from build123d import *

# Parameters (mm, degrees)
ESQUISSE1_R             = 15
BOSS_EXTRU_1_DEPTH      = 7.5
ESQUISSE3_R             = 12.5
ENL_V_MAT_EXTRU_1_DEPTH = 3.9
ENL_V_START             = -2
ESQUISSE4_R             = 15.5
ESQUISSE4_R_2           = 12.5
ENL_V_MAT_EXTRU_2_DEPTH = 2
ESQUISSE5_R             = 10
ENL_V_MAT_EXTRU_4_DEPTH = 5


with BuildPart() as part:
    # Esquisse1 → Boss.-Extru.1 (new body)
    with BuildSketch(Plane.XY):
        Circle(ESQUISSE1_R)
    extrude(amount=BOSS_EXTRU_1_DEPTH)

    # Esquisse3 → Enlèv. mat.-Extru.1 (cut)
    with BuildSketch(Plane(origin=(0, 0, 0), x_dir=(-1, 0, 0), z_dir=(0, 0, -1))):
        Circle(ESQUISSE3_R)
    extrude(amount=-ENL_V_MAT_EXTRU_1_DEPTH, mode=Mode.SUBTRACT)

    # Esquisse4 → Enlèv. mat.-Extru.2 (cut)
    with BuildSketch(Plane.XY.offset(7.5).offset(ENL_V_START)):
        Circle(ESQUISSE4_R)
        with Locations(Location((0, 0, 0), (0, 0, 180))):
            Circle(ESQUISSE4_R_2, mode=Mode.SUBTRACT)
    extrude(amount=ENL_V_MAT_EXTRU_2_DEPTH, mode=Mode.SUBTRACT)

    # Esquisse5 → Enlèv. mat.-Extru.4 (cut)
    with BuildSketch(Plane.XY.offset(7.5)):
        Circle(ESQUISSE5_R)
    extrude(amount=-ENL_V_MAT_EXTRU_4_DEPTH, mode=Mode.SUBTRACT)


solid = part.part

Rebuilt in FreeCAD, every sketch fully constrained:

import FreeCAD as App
import Part
import Sketcher

doc = App.newDocument("Part")
params = doc.addObject("Spreadsheet::Sheet", "Params")
for row, (alias, value) in enumerate([
    ("sketch1_diameter", "30 mm"),
    ("pad1_length", "7.5 mm"),
    ("sketch2_diameter", "25 mm"),
    ("pocket1_length", "3.9 mm"),
    ("sketch3_diameter", "31 mm"),
    ("sketch3_diameter2", "25 mm"),
    ("pocket2_length", "2 mm"),
    ("sketch4_diameter", "20 mm"),
    ("pocket3_length", "5 mm"),
], start=1):
    params.set(f"A{row}", alias)
    params.set(f"B{row}", "=" + value)
    params.setAlias(f"B{row}", alias)

body = doc.addObject("PartDesign::Body", "Body")

# Sketch on XY plane
sketch1 = body.newObject("Sketcher::SketchObject", "Sketch")
sketch1.AttachmentSupport = (doc.getObject("XY_Plane"), [""])
sketch1.MapMode = "FlatFace"
sketch1.addGeometry(Part.Circle(App.Vector(0, 0, 0), App.Vector(0, 0, 1), 15), False)
sketch1.addConstraint([
    Sketcher.Constraint("Coincident", 0, 3, -1, 1),
    Sketcher.Constraint("Diameter", 0, 30.0),
])
sketch1.setExpression("Constraints[1]", "Params.sketch1_diameter")
pad1 = body.newObject("PartDesign::Pad", "Pad")
pad1.Profile = sketch1
pad1.setExpression("Length", "Params.pad1_length")

# Sketch on XY plane
sketch2 = body.newObject("Sketcher::SketchObject", "Sketch001")
sketch2.AttachmentSupport = (doc.getObject("XY_Plane"), [""])
sketch2.MapMode = "FlatFace"
sketch2.addGeometry(Part.Circle(App.Vector(0, 0, 0), App.Vector(0, 0, 1), 12.5), False)
sketch2.addConstraint([
    Sketcher.Constraint("Coincident", 0, 3, -1, 1),
    Sketcher.Constraint("Diameter", 0, 25.0),
])
sketch2.setExpression("Constraints[1]", "Params.sketch2_diameter")
pocket1 = body.newObject("PartDesign::Pocket", "Pocket")
pocket1.Profile = sketch2
pocket1.setExpression("Length", "Params.pocket1_length")
pocket1.Reversed = True

# Sketch on XY plane
sketch3 = body.newObject("Sketcher::SketchObject", "Sketch002")
sketch3.AttachmentSupport = (doc.getObject("XY_Plane"), [""])
sketch3.MapMode = "FlatFace"
sketch3.AttachmentOffset = App.Placement(App.Vector(0, 0, 5.5), App.Rotation())
sketch3.addGeometry([
    Part.Circle(App.Vector(0, 0, 0), App.Vector(0, 0, 1), 15.5),
    Part.Circle(App.Vector(0, 0, 0), App.Vector(0, 0, 1), 12.5),
], False)
sketch3.addConstraint([
    Sketcher.Constraint("Coincident", 0, 3, -1, 1),
    Sketcher.Constraint("Coincident", 1, 3, -1, 1),
    Sketcher.Constraint("Diameter", 0, 31.0),
    Sketcher.Constraint("Diameter", 1, 25.0),
])
sketch3.setExpression("Constraints[2]", "Params.sketch3_diameter")
sketch3.setExpression("Constraints[3]", "Params.sketch3_diameter2")
pocket2 = body.newObject("PartDesign::Pocket", "Pocket001")
pocket2.Profile = sketch3
pocket2.setExpression("Length", "Params.pocket2_length")
pocket2.Reversed = True

# Sketch on XY plane
sketch4 = body.newObject("Sketcher::SketchObject", "Sketch003")
sketch4.AttachmentSupport = (doc.getObject("XY_Plane"), [""])
sketch4.MapMode = "FlatFace"
sketch4.AttachmentOffset = App.Placement(App.Vector(0, 0, 7.5), App.Rotation())
sketch4.addGeometry(Part.Circle(App.Vector(0, 0, 0), App.Vector(0, 0, 1), 10), False)
sketch4.addConstraint([
    Sketcher.Constraint("Coincident", 0, 3, -1, 1),
    Sketcher.Constraint("Diameter", 0, 20.0),
])
sketch4.setExpression("Constraints[1]", "Params.sketch4_diameter")
pocket3 = body.newObject("PartDesign::Pocket", "Pocket002")
pocket3.Profile = sketch4
pocket3.setExpression("Length", "Params.pocket3_length")

doc.recompute()
